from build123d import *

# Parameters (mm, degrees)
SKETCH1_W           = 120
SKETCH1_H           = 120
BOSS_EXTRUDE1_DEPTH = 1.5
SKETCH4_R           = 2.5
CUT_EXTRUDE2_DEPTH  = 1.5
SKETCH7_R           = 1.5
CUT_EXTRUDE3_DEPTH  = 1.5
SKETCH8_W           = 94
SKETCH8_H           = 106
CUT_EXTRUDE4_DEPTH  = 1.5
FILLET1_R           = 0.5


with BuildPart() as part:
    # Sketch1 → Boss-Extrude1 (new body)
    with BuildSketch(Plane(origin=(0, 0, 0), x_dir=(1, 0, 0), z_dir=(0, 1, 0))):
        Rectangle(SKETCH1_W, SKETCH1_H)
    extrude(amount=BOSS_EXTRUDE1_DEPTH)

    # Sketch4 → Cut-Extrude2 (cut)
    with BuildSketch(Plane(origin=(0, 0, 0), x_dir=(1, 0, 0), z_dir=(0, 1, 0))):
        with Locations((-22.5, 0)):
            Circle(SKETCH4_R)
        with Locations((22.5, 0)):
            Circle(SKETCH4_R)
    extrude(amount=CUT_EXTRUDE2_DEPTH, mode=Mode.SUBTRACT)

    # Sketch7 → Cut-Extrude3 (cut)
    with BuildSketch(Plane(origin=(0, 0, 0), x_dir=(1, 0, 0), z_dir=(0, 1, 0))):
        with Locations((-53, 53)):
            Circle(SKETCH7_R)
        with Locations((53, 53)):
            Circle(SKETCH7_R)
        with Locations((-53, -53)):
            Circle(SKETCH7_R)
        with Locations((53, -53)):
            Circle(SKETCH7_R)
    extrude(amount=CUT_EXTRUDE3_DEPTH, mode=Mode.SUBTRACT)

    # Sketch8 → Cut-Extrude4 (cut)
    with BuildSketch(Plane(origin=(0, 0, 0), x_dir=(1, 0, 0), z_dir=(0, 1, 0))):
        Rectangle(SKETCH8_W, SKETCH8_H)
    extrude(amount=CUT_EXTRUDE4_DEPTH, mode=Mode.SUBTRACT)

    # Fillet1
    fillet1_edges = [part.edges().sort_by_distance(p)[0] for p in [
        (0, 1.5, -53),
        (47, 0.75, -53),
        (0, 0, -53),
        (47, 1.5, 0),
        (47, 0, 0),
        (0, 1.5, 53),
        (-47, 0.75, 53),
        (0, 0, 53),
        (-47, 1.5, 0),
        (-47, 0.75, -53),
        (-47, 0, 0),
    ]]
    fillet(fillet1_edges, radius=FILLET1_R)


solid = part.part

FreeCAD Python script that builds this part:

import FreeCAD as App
import Part
import Sketcher
from FreeCAD import Vector
Q = App.Units.Quantity


def edges_at(feature, points):
    """Names of the edges that pass closest to the given points."""
    edges = feature.Shape.Edges
    near = lambda p: min(range(len(edges)), key=lambda i: edges[i].distToShape(Part.Vertex(*p))[0])
    return sorted({f"Edge{near(p) + 1}" for p in points})

doc = App.newDocument("Part")
params = doc.addObject("Spreadsheet::Sheet", "Params")
for row, (alias, value) in enumerate([
    ("sketch1_width", "120 mm"),
    ("pad1_length", "1.5 mm"),
    ("sketch2_diameter", "5 mm"),
    ("pocket1_length", "1.5 mm"),
    ("sketch3_diameter", "3 mm"),
    ("pocket2_length", "1.5 mm"),
    ("sketch4_width", "94 mm"),
    ("sketch4_height", "106 mm"),
    ("pocket3_length", "1.5 mm"),
    ("fillet_radius", "0.5 mm"),
], start=1):
    params.set(f"A{row}", alias)
    params.set(f"B{row}", "=" + value)
    params.setAlias(f"B{row}", alias)

body = doc.addObject("PartDesign::Body", "Body")

sketch1 = body.newObject("Sketcher::SketchObject", "Sketch")
sketch1.AttachmentSupport = (doc.getObject("XZ_Plane"), [""])
sketch1.MapMode = "FlatFace"
sketch1.addGeometry(Part.LineSegment(Vector(-60, -60, 0), Vector(-60, 60, 0)), False)
sketch1.addGeometry(Part.LineSegment(Vector(-60, 60, 0), Vector(60, 60, 0)), False)
sketch1.addGeometry(Part.LineSegment(Vector(60, 60, 0), Vector(60, -60, 0)), False)
sketch1.addGeometry(Part.LineSegment(Vector(60, -60, 0), Vector(-60, -60, 0)), False)
sketch1.addConstraint(Sketcher.Constraint("Coincident", 0, 2, 1, 1))
sketch1.addConstraint(Sketcher.Constraint("Coincident", 1, 2, 2, 1))
sketch1.addConstraint(Sketcher.Constraint("Coincident", 2, 2, 3, 1))
sketch1.addConstraint(Sketcher.Constraint("Coincident", 3, 2, 0, 1))
sketch1.addConstraint(Sketcher.Constraint("Vertical", 0))
sketch1.addConstraint(Sketcher.Constraint("Horizontal", 1))
sketch1.addConstraint(Sketcher.Constraint("Vertical", 2))
sketch1.addConstraint(Sketcher.Constraint("Horizontal", 3))
sketch1.addConstraint(Sketcher.Constraint("Symmetric", 0, 2, 2, 2, -1, 1))
sketch1.addConstraint(Sketcher.Constraint("Equal", 3, 0))
sketch1.addConstraint(Sketcher.Constraint("DistanceX", 1, 1, 1, 2, Q("120 mm")))
sketch1.setExpression("Constraints[10]", "Params.sketch1_width")
pad1 = body.newObject("PartDesign::Pad", "Pad")
pad1.Profile = sketch1
pad1.setExpression("Length", "Params.pad1_length")
pad1.Reversed = True

sketch2 = body.newObject("Sketcher::SketchObject", "Sketch001")
sketch2.AttachmentSupport = (doc.getObject("XZ_Plane"), [""])
sketch2.MapMode = "FlatFace"
sketch2.addGeometry(Part.Circle(Vector(-22.5, 0, 0), Vector(0, 0, 1), 2.5), False)
sketch2.addGeometry(Part.Circle(Vector(22.5, 0, 0), Vector(0, 0, 1), 2.5), False)
sketch2.addConstraint(Sketcher.Constraint("Equal", 0, 1))
sketch2.addConstraint(Sketcher.Constraint("Symmetric", 0, 3, 1, 3, -1, 1))
sketch2.addConstraint(Sketcher.Constraint("PointOnObject", 0, 3, -1))
sketch2.addConstraint(Sketcher.Constraint("Diameter", 0, Q("5 mm")))
sketch2.addConstraint(Sketcher.Constraint("DistanceX", 0, 3, 1, 3, Q("45 mm")))
sketch2.setExpression("Constraints[3]", "Params.sketch2_diameter")
pocket1 = body.newObject("PartDesign::Pocket", "Pocket")
pocket1.Profile = sketch2
pocket1.setExpression("Length", "Params.pocket1_length")

sketch3 = body.newObject("Sketcher::SketchObject", "Sketch002")
sketch3.AttachmentSupport = (doc.getObject("XZ_Plane"), [""])
sketch3.MapMode = "FlatFace"
sketch3.addGeometry(Part.Circle(Vector(-53, -53, 0), Vector(0, 0, 1), 1.5), False)
sketch3.addGeometry(Part.Circle(Vector(53, -53, 0), Vector(0, 0, 1), 1.5), False)
sketch3.addGeometry(Part.Circle(Vector(-53, 53, 0), Vector(0, 0, 1), 1.5), False)
sketch3.addGeometry(Part.Circle(Vector(53, 53, 0), Vector(0, 0, 1), 1.5), False)
sketch3.addConstraint(Sketcher.Constraint("Equal", 0, 1))
sketch3.addConstraint(Sketcher.Constraint("Equal", 1, 2))
sketch3.addConstraint(Sketcher.Constraint("Equal", 2, 3))
sketch3.addConstraint(Sketcher.Constraint("Symmetric", 1, 3, 2, 3, -1, 1))
sketch3.addConstraint(Sketcher.Constraint("Symmetric", 0, 3, 3, 3, -1, 1))
sketch3.addConstraint(Sketcher.Constraint("Symmetric", 0, 3, 1, 3, -2))
sketch3.addConstraint(Sketcher.Constraint("Diameter", 0, Q("3 mm")))
sketch3.addConstraint(Sketcher.Constraint("DistanceX", 0, 3, -1, 1, Q("53 mm")))
sketch3.addConstraint(Sketcher.Constraint("DistanceY", 0, 3, -1, 1, Q("53 mm")))
sketch3.setExpression("Constraints[6]", "Params.sketch3_diameter")
pocket2 = body.newObject("PartDesign::Pocket", "Pocket001")
pocket2.Profile = sketch3
pocket2.setExpression("Length", "Params.pocket2_length")

sketch4 = body.newObject("Sketcher::SketchObject", "Sketch003")
sketch4.AttachmentSupport = (doc.getObject("XZ_Plane"), [""])
sketch4.MapMode = "FlatFace"
sketch4.addGeometry(Part.LineSegment(Vector(-47, -53, 0), Vector(-47, 53, 0)), False)
sketch4.addGeometry(Part.LineSegment(Vector(-47, 53, 0), Vector(47, 53, 0)), False)
sketch4.addGeometry(Part.LineSegment(Vector(47, 53, 0), Vector(47, -53, 0)), False)
sketch4.addGeometry(Part.LineSegment(Vector(47, -53, 0), Vector(-47, -53, 0)), False)
sketch4.addConstraint(Sketcher.Constraint("Coincident", 0, 2, 1, 1))
sketch4.addConstraint(Sketcher.Constraint("Coincident", 1, 2, 2, 1))
sketch4.addConstraint(Sketcher.Constraint("Coincident", 2, 2, 3, 1))
sketch4.addConstraint(Sketcher.Constraint("Coincident", 3, 2, 0, 1))
sketch4.addConstraint(Sketcher.Constraint("Vertical", 0))
sketch4.addConstraint(Sketcher.Constraint("Horizontal", 1))
sketch4.addConstraint(Sketcher.Constraint("Vertical", 2))
sketch4.addConstraint(Sketcher.Constraint("Horizontal", 3))
sketch4.addConstraint(Sketcher.Constraint("Symmetric", 0, 2, 2, 2, -1, 1))
sketch4.addConstraint(Sketcher.Constraint("DistanceX", 1, 1, 1, 2, Q("94 mm")))
sketch4.addConstraint(Sketcher.Constraint("DistanceY", 0, 1, 0, 2, Q("106 mm")))
sketch4.setExpression("Constraints[9]", "Params.sketch4_width")
sketch4.setExpression("Constraints[10]", "Params.sketch4_height")
pocket3 = body.newObject("PartDesign::Pocket", "Pocket002")
pocket3.Profile = sketch4
pocket3.setExpression("Length", "Params.pocket3_length")
doc.recompute()

fillet = body.newObject("PartDesign::Fillet", "Fillet")
fillet.Base = (pocket3, edges_at(pocket3, [
    (0, 1.5, -53),
    (47, 0.75, -53),
    (0, 0, -53),
    (47, 1.5, 0),
    (47, 0, 0),
    (0, 1.5, 53),
    (-47, 0.75, 53),
    (0, 0, 53),
    (-47, 1.5, 0),
    (-47, 0.75, -53),
    (-47, 0, 0),
]))
fillet.setExpression("Radius", "Params.fillet_radius")

doc.recompute()
